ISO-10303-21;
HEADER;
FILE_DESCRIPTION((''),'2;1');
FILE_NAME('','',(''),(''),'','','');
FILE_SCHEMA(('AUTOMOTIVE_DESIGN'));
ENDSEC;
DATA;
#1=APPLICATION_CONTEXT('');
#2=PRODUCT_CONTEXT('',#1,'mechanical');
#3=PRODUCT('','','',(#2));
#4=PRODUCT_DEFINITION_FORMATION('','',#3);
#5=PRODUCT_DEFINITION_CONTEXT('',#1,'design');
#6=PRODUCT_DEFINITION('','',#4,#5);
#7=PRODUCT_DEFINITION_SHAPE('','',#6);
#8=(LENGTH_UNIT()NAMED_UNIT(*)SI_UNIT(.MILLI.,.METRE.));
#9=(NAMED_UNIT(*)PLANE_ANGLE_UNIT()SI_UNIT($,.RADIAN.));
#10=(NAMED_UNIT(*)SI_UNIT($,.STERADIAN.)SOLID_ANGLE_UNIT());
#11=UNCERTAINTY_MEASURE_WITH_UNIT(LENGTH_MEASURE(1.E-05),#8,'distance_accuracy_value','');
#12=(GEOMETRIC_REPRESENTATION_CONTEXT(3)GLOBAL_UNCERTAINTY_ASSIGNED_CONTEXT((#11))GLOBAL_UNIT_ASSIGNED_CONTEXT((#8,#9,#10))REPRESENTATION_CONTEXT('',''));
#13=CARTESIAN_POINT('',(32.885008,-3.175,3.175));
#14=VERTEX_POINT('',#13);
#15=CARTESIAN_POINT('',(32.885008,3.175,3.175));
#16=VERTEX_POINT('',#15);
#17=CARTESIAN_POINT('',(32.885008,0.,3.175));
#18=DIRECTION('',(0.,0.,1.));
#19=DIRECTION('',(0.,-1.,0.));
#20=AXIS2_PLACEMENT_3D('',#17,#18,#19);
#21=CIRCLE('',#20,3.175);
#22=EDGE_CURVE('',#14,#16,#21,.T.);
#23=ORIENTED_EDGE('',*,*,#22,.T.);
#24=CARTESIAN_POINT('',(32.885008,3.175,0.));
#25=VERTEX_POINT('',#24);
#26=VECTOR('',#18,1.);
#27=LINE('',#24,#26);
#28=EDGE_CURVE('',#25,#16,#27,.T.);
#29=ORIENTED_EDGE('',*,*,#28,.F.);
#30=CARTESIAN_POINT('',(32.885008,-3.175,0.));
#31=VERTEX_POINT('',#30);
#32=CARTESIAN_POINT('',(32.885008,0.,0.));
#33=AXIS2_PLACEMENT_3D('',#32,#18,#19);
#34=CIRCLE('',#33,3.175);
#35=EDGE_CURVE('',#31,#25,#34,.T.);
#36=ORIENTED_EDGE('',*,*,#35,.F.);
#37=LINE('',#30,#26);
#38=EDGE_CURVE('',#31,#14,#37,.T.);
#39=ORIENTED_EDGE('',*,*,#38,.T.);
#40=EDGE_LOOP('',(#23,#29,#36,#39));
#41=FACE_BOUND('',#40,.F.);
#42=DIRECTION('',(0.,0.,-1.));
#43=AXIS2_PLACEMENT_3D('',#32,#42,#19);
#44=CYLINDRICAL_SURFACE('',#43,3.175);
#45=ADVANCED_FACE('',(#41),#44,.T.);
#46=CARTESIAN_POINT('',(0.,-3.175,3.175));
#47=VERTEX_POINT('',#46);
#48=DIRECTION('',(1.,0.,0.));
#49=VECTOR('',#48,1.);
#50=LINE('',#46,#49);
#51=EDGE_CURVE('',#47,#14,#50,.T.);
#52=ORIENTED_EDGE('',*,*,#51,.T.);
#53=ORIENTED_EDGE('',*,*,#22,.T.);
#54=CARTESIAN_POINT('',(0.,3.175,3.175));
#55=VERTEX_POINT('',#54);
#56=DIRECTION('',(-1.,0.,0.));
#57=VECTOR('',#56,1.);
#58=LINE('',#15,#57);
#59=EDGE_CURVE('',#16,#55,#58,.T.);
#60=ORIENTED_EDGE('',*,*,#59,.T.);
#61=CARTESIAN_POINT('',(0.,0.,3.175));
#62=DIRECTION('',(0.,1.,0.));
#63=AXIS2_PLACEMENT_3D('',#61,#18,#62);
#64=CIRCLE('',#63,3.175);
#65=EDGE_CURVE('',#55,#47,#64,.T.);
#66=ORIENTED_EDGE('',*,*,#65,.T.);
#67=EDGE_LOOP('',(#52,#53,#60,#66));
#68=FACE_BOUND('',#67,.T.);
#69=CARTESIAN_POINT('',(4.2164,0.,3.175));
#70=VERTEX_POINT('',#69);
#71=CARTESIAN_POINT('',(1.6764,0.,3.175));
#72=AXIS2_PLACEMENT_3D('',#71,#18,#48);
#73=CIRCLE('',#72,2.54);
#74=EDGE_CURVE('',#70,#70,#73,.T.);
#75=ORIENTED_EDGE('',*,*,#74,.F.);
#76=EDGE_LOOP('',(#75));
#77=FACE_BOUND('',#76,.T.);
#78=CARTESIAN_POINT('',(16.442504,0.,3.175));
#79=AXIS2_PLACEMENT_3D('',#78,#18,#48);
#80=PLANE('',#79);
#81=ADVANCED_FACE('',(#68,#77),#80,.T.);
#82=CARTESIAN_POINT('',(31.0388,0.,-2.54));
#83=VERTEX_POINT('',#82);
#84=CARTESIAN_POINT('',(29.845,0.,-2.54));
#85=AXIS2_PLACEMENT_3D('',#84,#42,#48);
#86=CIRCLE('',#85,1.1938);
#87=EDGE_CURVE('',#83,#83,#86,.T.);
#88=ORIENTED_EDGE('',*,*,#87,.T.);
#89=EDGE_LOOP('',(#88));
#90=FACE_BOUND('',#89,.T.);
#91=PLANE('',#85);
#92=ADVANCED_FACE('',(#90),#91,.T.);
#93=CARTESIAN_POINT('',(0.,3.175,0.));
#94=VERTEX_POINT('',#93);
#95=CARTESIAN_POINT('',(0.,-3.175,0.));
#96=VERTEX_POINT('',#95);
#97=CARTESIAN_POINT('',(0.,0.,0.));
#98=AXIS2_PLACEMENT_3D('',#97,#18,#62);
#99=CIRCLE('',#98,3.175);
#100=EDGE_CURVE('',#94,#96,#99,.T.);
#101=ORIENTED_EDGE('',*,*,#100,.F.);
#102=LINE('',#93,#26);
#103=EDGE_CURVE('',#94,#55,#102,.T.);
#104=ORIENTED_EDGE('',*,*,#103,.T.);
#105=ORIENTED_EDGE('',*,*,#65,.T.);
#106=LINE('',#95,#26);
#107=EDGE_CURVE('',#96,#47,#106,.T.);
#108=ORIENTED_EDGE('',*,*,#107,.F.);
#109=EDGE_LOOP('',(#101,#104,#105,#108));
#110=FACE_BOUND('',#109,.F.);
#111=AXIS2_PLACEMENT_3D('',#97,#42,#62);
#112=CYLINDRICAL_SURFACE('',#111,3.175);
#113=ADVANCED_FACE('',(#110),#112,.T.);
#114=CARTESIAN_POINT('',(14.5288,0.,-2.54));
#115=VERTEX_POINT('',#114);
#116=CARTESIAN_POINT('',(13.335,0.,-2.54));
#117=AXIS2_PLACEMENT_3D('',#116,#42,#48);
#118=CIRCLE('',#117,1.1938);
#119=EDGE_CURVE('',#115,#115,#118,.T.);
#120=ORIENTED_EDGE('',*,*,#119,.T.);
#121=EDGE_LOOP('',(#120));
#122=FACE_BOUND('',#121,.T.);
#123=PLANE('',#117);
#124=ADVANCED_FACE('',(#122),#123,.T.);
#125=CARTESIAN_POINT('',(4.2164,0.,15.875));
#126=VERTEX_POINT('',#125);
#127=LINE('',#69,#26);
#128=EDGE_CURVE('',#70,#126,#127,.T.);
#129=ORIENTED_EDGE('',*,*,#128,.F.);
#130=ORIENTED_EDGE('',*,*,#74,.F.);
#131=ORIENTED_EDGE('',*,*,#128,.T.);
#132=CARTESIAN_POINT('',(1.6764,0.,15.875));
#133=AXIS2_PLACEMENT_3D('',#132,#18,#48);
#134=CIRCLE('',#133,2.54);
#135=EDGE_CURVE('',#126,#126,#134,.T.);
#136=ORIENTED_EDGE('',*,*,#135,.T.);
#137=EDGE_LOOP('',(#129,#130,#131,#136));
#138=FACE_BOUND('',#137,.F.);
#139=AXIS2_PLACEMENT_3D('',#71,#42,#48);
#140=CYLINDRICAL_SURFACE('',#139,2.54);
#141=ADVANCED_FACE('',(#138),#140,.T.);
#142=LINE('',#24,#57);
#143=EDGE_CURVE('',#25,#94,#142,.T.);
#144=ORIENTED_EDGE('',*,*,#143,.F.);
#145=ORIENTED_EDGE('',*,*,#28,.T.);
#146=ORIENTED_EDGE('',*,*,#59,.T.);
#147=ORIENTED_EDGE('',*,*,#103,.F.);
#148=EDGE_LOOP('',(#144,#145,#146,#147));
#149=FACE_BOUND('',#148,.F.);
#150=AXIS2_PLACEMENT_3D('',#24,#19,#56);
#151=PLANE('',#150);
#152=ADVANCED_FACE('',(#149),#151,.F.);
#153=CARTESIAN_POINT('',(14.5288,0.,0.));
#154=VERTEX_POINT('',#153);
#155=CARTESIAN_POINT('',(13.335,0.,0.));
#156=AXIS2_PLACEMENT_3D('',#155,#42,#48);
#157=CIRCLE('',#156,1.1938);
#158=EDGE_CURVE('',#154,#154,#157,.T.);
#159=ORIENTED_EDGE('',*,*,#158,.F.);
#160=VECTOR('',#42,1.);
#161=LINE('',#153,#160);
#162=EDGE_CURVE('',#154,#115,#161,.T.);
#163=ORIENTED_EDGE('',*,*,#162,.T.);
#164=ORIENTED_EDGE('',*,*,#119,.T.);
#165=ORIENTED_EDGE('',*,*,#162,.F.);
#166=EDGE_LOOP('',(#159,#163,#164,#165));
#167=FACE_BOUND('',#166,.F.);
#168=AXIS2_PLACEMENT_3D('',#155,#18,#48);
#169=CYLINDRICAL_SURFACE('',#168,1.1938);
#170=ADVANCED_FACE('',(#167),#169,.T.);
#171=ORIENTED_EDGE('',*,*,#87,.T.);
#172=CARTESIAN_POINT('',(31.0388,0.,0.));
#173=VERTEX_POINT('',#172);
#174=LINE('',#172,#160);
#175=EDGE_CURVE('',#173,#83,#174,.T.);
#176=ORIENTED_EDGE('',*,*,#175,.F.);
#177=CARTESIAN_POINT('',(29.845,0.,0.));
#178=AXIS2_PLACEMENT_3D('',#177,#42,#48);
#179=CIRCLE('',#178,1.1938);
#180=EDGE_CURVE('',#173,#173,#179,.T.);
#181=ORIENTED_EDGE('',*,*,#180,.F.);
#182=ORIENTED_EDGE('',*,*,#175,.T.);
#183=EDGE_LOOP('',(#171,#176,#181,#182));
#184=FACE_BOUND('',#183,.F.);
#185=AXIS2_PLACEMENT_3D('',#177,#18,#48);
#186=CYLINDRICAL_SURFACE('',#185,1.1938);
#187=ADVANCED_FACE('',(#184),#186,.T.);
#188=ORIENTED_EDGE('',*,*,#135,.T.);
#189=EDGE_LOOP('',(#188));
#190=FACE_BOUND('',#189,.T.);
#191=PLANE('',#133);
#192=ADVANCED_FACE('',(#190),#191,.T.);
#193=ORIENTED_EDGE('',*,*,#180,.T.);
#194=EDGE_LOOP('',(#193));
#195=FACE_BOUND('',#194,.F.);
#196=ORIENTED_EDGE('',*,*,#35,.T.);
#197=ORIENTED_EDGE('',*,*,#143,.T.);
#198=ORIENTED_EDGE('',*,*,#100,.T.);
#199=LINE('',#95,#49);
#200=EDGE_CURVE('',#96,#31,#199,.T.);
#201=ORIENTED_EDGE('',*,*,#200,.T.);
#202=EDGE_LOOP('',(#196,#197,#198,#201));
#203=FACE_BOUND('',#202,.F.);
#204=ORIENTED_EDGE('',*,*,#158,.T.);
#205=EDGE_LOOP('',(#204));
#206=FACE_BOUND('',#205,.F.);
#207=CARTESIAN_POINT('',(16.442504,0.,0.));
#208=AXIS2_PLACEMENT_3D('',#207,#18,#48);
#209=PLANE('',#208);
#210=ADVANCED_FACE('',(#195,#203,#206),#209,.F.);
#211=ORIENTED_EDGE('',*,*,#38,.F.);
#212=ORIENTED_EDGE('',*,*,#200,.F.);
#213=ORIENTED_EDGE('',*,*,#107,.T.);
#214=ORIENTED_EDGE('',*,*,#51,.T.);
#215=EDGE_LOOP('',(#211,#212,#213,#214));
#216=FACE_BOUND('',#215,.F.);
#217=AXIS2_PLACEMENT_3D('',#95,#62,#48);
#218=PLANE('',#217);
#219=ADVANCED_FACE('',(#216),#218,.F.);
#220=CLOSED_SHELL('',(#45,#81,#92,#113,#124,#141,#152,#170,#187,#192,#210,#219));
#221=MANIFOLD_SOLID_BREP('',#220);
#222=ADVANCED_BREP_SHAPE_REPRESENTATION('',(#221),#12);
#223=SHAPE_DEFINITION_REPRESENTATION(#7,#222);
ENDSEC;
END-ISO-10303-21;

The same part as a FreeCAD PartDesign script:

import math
import FreeCAD as App
import Part
import Sketcher

V = App.Vector
Q = App.Units.Quantity

doc = App.newDocument("Part")
body = doc.addObject("PartDesign::Body", "Body")

sketch1 = body.newObject("Sketcher::SketchObject", "Sketch")
sketch1.AttachmentSupport = (doc.getObject("XY_Plane"), [""])
sketch1.MapMode = "FlatFace"
sketch1.addGeometry([
    Part.LineSegment(V(32.885008, 3.175, 0), V(0, 3.175, 0)),
    Part.ArcOfCircle(Part.Circle(V(0, 0, 0), V(0, 0, 1), 3.175), math.radians(90), math.radians(270)),
    Part.LineSegment(V(0, -3.175, 0), V(32.885008, -3.175, 0)),
    Part.ArcOfCircle(Part.Circle(V(32.885008, 0, 0), V(0, 0, 1), 3.175), math.radians(-90), math.radians(90)),
], False)
sketch1.addConstraint([
    Sketcher.Constraint("Tangent", 0, 2, 1, 1),
    Sketcher.Constraint("Tangent", 1, 2, 2, 1),
    Sketcher.Constraint("Tangent", 2, 2, 3, 1),
    Sketcher.Constraint("Tangent", 3, 2, 0, 1),
    Sketcher.Constraint("Horizontal", 0),
    Sketcher.Constraint("Horizontal", 2),
    Sketcher.Constraint("Coincident", 1, 3, -1, 1),
    Sketcher.Constraint("Radius", 1, Q("0.125 in")),
    Sketcher.Constraint("DistanceX", 0, 2, 0, 1, 32.885008),
])
pad1 = body.newObject("PartDesign::Pad", "Pad")
pad1.Profile = sketch1
pad1.Length = Q("0.125 in")

sketch2 = body.newObject("Sketcher::SketchObject", "Sketch001")
sketch2.AttachmentSupport = (doc.getObject("XY_Plane"), [""])
sketch2.MapMode = "FlatFace"
sketch2.AttachmentOffset = App.Placement(V(0, 0, 0.125 * 25.4), App.Rotation())
sketch2.addGeometry(Part.Circle(V(1.6764, 0, 0), V(0, 0, 1), 2.54), False)
sketch2.addConstraint([
    Sketcher.Constraint("PointOnObject", 0, 3, -1),
    Sketcher.Constraint("Diameter", 0, Q("0.2 in")),
    Sketcher.Constraint("DistanceX", -1, 1, 0, 3, Q("0.066 in")),
])
pad2 = body.newObject("PartDesign::Pad", "Pad001")
pad2.Profile = sketch2
pad2.Length = Q("0.5 in")

sketch3 = body.newObject("Sketcher::SketchObject", "Sketch002")
sketch3.AttachmentSupport = (doc.getObject("XY_Plane"), [""])
sketch3.MapMode = "FlatFace"
sketch3.addGeometry([
    Part.Circle(V(13.335, 0, 0), V(0, 0, 1), 1.1938),
    Part.Circle(V(29.845, 0, 0), V(0, 0, 1), 1.1938),
], False)
sketch3.addConstraint([
    Sketcher.Constraint("Equal", 0, 1),
    Sketcher.Constraint("PointOnObject", 0, 3, -1),
    Sketcher.Constraint("PointOnObject", 1, 3, -1),
    Sketcher.Constraint("Diameter", 0, Q("0.094 in")),
    Sketcher.Constraint("DistanceX", 0, 3, 1, 3, Q("0.65 in")),
    Sketcher.Constraint("DistanceX", -1, 1, 0, 3, Q("0.525 in")),
])
pad3 = body.newObject("PartDesign::Pad", "Pad002")
pad3.Profile = sketch3
pad3.Length = Q("0.1 in")
pad3.Reversed = True

doc.recompute()
